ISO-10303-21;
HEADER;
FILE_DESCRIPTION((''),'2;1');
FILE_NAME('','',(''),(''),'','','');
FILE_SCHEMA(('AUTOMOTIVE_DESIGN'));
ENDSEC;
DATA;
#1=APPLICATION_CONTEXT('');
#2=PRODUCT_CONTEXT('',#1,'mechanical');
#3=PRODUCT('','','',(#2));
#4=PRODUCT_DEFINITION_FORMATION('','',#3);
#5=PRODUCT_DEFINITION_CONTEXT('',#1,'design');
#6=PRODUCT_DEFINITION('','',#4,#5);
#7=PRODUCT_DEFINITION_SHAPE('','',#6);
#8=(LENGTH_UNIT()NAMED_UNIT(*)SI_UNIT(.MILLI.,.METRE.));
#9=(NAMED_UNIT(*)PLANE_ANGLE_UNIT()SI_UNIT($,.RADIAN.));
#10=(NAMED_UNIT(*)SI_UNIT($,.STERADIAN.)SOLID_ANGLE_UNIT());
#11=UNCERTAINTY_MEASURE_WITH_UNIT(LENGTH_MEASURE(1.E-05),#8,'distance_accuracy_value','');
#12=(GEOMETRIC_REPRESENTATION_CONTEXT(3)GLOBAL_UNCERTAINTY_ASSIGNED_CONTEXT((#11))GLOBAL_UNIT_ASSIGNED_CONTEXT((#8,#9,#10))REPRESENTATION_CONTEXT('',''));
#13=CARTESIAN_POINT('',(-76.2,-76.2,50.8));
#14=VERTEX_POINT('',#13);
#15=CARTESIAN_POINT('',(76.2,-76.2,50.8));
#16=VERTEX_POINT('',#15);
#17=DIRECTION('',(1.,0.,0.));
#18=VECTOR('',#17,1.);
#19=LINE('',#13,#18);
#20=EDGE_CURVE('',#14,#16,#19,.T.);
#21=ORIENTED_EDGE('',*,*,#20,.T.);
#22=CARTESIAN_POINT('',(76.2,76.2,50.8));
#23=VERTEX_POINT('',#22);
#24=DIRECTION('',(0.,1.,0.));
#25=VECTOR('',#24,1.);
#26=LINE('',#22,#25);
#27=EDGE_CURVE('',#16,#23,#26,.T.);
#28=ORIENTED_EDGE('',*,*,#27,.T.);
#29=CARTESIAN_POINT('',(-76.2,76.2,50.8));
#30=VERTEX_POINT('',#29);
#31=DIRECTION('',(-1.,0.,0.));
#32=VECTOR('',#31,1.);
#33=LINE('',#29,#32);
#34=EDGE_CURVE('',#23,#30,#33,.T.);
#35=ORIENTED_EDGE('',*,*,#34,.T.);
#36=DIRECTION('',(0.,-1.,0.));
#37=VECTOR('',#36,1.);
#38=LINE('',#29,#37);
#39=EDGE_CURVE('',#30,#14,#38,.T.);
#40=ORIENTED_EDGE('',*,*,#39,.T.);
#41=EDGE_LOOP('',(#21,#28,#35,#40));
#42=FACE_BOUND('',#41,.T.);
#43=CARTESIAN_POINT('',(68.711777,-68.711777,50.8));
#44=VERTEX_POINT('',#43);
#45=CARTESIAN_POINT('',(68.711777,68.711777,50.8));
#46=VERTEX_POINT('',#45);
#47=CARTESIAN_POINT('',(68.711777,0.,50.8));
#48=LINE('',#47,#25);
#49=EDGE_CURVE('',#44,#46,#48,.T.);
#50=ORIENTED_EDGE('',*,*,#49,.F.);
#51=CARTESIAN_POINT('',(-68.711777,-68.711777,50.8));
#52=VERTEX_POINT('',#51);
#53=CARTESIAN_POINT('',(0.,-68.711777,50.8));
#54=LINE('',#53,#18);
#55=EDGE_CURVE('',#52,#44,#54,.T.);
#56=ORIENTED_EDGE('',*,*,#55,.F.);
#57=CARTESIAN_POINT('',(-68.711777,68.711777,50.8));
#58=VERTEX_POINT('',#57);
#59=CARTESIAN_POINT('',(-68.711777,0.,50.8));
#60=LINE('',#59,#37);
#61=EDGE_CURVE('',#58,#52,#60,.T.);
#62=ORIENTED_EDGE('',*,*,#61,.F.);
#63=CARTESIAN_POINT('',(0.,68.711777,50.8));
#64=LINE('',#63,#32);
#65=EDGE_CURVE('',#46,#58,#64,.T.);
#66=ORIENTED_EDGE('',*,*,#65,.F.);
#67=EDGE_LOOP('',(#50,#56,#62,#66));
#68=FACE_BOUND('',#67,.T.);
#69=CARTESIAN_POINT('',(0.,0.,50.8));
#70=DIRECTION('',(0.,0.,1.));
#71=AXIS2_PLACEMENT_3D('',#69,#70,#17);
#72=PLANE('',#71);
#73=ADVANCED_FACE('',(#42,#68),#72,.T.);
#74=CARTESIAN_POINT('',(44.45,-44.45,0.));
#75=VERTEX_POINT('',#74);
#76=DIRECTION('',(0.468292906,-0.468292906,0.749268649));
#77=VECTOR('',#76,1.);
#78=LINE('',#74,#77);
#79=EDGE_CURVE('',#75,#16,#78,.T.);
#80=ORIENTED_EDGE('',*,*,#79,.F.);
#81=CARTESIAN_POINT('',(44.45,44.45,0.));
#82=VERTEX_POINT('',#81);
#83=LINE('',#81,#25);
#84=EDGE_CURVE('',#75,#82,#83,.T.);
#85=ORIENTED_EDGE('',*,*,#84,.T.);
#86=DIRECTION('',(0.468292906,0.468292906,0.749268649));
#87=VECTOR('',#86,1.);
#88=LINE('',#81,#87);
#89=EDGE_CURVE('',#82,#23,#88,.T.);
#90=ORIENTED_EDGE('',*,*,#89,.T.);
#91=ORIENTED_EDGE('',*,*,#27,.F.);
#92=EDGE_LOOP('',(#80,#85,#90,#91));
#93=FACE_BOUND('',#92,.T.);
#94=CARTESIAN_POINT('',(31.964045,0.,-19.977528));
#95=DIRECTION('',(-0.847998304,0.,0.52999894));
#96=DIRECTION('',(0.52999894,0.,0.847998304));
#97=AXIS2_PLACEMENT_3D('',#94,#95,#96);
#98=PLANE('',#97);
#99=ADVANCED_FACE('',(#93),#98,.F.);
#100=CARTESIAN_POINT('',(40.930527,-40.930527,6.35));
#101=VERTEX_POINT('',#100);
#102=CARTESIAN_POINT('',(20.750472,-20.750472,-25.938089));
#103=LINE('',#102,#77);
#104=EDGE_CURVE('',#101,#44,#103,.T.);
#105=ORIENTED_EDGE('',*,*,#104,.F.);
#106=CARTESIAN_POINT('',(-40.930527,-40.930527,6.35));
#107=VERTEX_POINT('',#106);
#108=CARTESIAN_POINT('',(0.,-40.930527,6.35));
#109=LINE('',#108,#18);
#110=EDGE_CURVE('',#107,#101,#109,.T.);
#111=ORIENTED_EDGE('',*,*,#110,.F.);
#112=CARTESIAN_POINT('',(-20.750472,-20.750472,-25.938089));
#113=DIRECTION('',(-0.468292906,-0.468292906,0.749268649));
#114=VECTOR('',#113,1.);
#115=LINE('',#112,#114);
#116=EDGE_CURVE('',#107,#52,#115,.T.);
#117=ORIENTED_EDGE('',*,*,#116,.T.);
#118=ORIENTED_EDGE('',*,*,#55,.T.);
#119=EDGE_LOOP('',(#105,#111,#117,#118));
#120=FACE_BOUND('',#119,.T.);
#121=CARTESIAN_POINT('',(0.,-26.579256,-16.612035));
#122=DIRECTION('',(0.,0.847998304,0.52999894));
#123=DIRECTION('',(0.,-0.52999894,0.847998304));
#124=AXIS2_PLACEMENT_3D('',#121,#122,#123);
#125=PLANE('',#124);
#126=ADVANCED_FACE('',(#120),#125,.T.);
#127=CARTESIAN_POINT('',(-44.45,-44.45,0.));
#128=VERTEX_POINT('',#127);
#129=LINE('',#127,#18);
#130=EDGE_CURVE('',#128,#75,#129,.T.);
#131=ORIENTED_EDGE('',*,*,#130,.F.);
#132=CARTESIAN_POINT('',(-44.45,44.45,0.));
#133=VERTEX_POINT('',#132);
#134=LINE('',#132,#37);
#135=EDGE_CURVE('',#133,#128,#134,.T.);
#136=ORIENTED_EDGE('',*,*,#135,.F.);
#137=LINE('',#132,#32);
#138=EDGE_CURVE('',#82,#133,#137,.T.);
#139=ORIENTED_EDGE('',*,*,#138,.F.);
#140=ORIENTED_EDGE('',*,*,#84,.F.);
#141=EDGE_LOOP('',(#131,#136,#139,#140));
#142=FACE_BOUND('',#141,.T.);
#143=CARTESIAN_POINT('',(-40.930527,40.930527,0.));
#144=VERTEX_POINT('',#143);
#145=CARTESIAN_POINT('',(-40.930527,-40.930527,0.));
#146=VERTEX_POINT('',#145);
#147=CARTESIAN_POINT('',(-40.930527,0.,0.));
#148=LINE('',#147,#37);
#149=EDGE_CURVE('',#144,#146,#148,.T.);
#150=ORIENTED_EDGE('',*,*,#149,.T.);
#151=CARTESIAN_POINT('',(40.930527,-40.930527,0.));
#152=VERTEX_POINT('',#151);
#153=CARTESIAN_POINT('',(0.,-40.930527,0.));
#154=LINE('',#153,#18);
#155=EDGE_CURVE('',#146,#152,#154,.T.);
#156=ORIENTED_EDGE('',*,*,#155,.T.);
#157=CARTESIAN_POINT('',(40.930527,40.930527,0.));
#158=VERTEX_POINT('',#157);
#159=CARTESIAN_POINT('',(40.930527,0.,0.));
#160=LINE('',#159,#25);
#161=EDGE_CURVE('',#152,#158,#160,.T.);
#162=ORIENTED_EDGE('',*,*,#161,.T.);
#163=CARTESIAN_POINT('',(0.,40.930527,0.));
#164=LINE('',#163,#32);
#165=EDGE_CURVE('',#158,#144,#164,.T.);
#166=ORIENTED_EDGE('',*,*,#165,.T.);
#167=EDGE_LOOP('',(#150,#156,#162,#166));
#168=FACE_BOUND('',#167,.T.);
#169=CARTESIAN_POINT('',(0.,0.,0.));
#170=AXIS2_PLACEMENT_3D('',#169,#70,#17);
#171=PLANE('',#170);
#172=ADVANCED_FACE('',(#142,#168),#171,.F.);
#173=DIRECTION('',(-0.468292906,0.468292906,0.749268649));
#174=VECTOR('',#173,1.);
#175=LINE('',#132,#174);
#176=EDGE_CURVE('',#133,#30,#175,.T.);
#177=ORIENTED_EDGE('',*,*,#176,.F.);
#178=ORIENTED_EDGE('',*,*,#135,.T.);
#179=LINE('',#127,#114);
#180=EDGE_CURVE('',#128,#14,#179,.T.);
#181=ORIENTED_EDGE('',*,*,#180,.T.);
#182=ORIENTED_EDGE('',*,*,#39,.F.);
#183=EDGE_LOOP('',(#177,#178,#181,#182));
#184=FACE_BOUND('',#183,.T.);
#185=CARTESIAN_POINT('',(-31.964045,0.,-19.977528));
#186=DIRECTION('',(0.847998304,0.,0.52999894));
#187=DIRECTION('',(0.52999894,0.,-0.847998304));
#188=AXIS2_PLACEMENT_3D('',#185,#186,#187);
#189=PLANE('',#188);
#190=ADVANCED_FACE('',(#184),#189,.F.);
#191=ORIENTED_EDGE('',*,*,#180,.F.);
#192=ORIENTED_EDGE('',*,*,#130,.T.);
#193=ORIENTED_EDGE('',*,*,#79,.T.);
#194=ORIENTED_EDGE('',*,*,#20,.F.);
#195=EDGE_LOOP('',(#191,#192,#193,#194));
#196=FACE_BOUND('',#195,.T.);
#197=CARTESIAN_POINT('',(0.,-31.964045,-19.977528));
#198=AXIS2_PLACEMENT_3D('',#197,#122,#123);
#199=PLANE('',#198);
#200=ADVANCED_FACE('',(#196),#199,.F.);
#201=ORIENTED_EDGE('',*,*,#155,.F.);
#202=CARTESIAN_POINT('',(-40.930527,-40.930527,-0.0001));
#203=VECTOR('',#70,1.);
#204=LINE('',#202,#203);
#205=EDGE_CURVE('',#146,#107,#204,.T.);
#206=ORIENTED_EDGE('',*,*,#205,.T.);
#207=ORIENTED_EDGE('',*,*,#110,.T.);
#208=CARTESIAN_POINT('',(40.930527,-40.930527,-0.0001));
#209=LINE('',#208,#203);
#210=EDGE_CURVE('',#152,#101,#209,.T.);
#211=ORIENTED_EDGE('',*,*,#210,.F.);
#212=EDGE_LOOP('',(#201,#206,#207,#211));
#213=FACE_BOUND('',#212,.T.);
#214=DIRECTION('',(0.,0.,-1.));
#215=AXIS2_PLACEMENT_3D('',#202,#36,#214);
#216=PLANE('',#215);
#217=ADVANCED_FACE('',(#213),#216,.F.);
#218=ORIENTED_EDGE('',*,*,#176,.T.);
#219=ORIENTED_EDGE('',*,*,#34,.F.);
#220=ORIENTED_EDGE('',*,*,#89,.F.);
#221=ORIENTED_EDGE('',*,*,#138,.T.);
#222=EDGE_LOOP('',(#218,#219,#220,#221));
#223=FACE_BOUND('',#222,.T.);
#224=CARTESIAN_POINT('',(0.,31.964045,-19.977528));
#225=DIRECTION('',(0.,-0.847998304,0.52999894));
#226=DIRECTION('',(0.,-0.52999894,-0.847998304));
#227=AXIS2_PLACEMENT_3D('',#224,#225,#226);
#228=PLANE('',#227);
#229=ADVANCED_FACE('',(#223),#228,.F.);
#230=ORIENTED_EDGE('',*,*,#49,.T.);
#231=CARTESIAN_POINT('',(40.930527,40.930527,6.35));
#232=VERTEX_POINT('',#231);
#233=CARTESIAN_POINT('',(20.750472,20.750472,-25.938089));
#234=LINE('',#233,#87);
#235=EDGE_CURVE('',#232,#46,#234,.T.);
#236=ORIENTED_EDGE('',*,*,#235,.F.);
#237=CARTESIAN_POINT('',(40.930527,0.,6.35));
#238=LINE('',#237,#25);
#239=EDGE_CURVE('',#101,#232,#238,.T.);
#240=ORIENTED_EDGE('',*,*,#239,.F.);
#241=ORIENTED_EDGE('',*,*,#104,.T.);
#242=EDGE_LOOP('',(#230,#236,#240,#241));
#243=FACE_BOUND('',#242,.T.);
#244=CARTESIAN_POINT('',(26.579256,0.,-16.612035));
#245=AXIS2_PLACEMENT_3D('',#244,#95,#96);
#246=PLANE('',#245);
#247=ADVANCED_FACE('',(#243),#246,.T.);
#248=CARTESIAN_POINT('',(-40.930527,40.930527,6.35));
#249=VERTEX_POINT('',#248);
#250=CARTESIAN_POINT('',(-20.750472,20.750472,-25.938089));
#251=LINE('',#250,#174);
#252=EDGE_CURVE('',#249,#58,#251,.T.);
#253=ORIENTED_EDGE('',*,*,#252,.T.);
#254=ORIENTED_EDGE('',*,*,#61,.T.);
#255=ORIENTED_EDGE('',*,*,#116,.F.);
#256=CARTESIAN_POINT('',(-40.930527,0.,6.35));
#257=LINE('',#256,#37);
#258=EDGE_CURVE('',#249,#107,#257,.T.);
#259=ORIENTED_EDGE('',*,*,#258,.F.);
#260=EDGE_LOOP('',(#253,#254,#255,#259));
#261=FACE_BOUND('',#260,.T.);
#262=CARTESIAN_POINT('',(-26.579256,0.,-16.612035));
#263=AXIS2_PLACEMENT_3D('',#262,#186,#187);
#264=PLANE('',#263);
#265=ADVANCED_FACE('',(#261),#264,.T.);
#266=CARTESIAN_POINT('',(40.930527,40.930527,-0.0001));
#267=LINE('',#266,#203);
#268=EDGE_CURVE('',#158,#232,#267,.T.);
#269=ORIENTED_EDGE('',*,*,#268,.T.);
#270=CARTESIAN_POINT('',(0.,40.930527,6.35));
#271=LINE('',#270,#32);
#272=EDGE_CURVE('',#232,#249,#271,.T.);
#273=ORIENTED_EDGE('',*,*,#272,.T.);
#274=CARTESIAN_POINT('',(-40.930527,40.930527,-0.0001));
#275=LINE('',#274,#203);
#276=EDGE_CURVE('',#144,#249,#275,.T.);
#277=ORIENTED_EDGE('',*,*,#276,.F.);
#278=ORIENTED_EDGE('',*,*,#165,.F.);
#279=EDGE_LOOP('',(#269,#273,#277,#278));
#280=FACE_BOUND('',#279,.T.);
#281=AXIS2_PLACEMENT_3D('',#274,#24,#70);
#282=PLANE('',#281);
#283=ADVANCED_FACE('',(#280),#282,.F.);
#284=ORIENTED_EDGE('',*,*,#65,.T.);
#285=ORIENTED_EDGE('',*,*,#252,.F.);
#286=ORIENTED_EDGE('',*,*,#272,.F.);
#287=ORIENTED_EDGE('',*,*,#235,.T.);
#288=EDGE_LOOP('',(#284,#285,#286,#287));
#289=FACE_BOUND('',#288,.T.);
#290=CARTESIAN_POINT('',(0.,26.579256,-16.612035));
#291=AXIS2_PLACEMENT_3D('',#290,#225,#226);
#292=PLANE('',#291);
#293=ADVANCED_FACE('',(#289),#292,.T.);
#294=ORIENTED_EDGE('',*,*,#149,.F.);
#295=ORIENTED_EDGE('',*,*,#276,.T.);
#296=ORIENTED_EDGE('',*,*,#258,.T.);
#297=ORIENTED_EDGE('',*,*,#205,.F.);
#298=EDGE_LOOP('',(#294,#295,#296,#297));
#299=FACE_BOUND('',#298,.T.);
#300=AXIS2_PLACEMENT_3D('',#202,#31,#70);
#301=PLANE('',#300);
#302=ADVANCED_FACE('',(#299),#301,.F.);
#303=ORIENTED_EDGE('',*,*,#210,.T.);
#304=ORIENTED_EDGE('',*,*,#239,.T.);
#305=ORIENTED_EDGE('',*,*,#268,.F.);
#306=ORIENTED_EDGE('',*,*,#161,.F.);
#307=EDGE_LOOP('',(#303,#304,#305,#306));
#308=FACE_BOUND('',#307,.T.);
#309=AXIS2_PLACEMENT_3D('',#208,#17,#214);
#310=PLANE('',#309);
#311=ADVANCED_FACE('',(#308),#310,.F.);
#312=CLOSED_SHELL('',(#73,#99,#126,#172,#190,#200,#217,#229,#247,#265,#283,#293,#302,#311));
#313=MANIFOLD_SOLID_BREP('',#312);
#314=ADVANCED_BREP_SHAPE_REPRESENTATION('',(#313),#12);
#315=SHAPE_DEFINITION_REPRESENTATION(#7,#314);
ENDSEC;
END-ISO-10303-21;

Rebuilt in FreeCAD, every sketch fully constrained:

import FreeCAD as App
import Part
import Sketcher
Q = App.Units.Quantity


def faces_at(feature, points):
    """Names of the faces that lie closest to the given points."""
    faces = feature.Shape.Faces
    near = lambda p: min(range(len(faces)), key=lambda i: faces[i].distToShape(Part.Vertex(*p))[0])
    return sorted({f"Face{near(p) + 1}" for p in points})


def add_polygon(sketch, points):
    """Adds a closed chain of lines whose ends are joined by coincident constraints."""
    first, n = sketch.GeometryCount, len(points)
    for a, b in zip(points, points[1:] + points[:1]):
        sketch.addGeometry(Part.LineSegment(App.Vector(*a, 0), App.Vector(*b, 0)), False)
    for i in range(n):
        sketch.addConstraint(Sketcher.Constraint("Coincident", first + i, 2, first + (i + 1) % n, 1))

doc = App.newDocument("Part")
params = doc.addObject("Spreadsheet::Sheet", "Params")
for row, (alias, value) in enumerate([
    ("sketch1_width", "3.5 in"),
    ("sketch2_width", "6 in"),
    ("thickness_wall", "0.25 in"),
], start=1):
    params.set(f"A{row}", alias)
    params.set(f"B{row}", "=" + value)
    params.setAlias(f"B{row}", alias)

body = doc.addObject("PartDesign::Body", "Body")

# Sketch on XY plane
sketch1 = doc.addObject("Sketcher::SketchObject", "Sketch")
body.addObject(sketch1)
sketch1.AttachmentSupport = (doc.XY_Plane, [""])
sketch1.MapMode = "FlatFace"
add_polygon(sketch1, [(44, 44), (-44, 44), (-44, -44), (44, -44)])  # lines 0-3
sketch1.addConstraint(Sketcher.Constraint("Horizontal", 0))
sketch1.addConstraint(Sketcher.Constraint("Vertical", 1))
sketch1.addConstraint(Sketcher.Constraint("Horizontal", 2))
sketch1.addConstraint(Sketcher.Constraint("Vertical", 3))
sketch1.addConstraint(Sketcher.Constraint("Symmetric", 0, 2, 2, 2, -1, 1))
sketch1.addConstraint(Sketcher.Constraint("Equal", 2, 1))
sketch1.addConstraint(Sketcher.Constraint("DistanceX", 0, 2, 0, 1, Q("3.5 in")))
sketch1.setExpression("Constraints[10]", "Params.sketch1_width")

# Sketch on XY plane
sketch2 = doc.addObject("Sketcher::SketchObject", "Sketch001")
body.addObject(sketch2)
sketch2.AttachmentSupport = (doc.XY_Plane, [""])
sketch2.MapMode = "FlatFace"
sketch2.AttachmentOffset = App.Placement(App.Vector(0, 0, 2 * 25.4), App.Rotation())
add_polygon(sketch2, [(76, 76), (-76, 76), (-76, -76), (76, -76)])  # lines 0-3
sketch2.addConstraint(Sketcher.Constraint("Horizontal", 0))
sketch2.addConstraint(Sketcher.Constraint("Vertical", 1))
sketch2.addConstraint(Sketcher.Constraint("Horizontal", 2))
sketch2.addConstraint(Sketcher.Constraint("Vertical", 3))
sketch2.addConstraint(Sketcher.Constraint("Symmetric", 0, 2, 2, 2, -1, 1))
sketch2.addConstraint(Sketcher.Constraint("Equal", 2, 1))
sketch2.addConstraint(Sketcher.Constraint("DistanceX", 0, 2, 0, 1, Q("6 in")))
sketch2.setExpression("Constraints[10]", "Params.sketch2_width")

additiveloft = doc.addObject("PartDesign::AdditiveLoft", "AdditiveLoft")
body.addObject(additiveloft)
additiveloft.Profile = sketch1
additiveloft.Sections = [sketch2]
doc.recompute()

thickness = doc.addObject("PartDesign::Thickness", "Thickness")
body.addObject(thickness)
thickness.Base = (additiveloft, faces_at(additiveloft, [(0, 0, 50.8)]))
thickness.setExpression("Value", "Params.thickness_wall")
thickness.Reversed = True
thickness.Join = "Intersection"

# Sketch on XY plane
sketch3 = doc.addObject("Sketcher::SketchObject", "Sketch002")
body.addObject(sketch3)
sketch3.AttachmentSupport = (doc.XY_Plane, [""])
sketch3.MapMode = "FlatFace"
sketch3.AttachmentOffset = App.Placement(App.Vector(0, 0, 0.25 * 25.4), App.Rotation())
add_polygon(sketch3, [(-41, 41), (-41, -41), (41, -41), (41, 41)])  # lines 0-3
sketch3.addConstraint(Sketcher.Constraint("Vertical", 0))
sketch3.addConstraint(Sketcher.Constraint("Horizontal", 1))
sketch3.addConstraint(Sketcher.Constraint("Vertical", 2))
sketch3.addConstraint(Sketcher.Constraint("Horizontal", 3))
sketch3.addConstraint(Sketcher.Constraint("Symmetric", 0, 2, 2, 2, -1, 1))
sketch3.addConstraint(Sketcher.Constraint("Equal", 3, 0))
sketch3.addConstraint(Sketcher.Constraint("DistanceX", 1, 1, 1, 2, 81.861055))
pocket1 = doc.addObject("PartDesign::Pocket", "Pocket")
body.addObject(pocket1)
pocket1.Profile = sketch3
pocket1.Type = "ThroughAll"

doc.recompute()
